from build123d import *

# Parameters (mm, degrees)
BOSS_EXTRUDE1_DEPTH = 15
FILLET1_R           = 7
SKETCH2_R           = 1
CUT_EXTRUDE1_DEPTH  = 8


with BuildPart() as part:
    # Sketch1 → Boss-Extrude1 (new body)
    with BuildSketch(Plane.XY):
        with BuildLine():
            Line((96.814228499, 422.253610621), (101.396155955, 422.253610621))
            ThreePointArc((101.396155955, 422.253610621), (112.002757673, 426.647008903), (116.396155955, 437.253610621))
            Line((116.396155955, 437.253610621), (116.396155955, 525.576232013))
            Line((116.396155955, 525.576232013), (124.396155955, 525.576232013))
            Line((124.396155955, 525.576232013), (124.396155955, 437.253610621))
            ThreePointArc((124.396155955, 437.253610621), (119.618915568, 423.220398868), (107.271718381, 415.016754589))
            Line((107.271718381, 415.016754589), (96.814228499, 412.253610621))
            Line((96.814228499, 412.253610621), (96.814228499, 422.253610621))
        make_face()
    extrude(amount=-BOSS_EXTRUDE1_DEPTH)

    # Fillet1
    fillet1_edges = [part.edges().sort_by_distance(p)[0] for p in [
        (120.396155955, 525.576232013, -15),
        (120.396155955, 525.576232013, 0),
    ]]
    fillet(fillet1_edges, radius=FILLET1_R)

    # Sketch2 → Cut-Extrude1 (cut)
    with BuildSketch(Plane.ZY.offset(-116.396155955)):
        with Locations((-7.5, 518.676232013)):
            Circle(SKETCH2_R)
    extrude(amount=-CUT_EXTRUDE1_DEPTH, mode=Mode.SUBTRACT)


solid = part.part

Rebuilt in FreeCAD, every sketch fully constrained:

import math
import FreeCAD as App
import Part
import Sketcher

V = App.Vector


def edges_at(feature, points):
    """Names of the edges that pass closest to the given points."""
    edges = feature.Shape.Edges
    near = lambda p: min(range(len(edges)), key=lambda i: edges[i].distToShape(Part.Vertex(*p))[0])
    return sorted({f"Edge{near(p) + 1}" for p in points})

doc = App.newDocument("Part")
body = doc.addObject("PartDesign::Body", "Body")

# Sketch on XY plane
sketch1 = doc.addObject("Sketcher::SketchObject", "Sketch")
body.addObject(sketch1)
sketch1.AttachmentSupport = (doc.XY_Plane, [""])
sketch1.MapMode = "FlatFace"
sketch1.addGeometry(Part.LineSegment(V(101.4, 422.3, 0), V(96.8, 422.3, 0)), False)
sketch1.addGeometry(Part.LineSegment(V(96.8, 422.3, 0), V(96.8, 412.3, 0)), False)
sketch1.addGeometry(Part.LineSegment(V(96.8, 412.3, 0), V(107.3, 415, 0)), False)
sketch1.addGeometry(Part.ArcOfCircle(Part.Circle(V(101.4, 437.3, 0), V(0, 0, 1), 23), math.radians(-75), math.radians(0)), False)
sketch1.addGeometry(Part.LineSegment(V(124.4, 437.3, 0), V(124.4, 525.6, 0)), False)
sketch1.addGeometry(Part.LineSegment(V(124.4, 525.6, 0), V(116.4, 525.6, 0)), False)
sketch1.addGeometry(Part.LineSegment(V(116.4, 525.6, 0), V(116.4, 437.3, 0)), False)
sketch1.addGeometry(Part.ArcOfCircle(Part.Circle(V(101.4, 437.3, 0), V(0, 0, 1), 15), math.radians(-90), math.radians(0)), False)
sketch1.addConstraint(Sketcher.Constraint("Coincident", 0, 2, 1, 1))
sketch1.addConstraint(Sketcher.Constraint("Coincident", 1, 2, 2, 1))
sketch1.addConstraint(Sketcher.Constraint("Tangent", 2, 2, 3, 1))
sketch1.addConstraint(Sketcher.Constraint("Tangent", 3, 2, 4, 1))
sketch1.addConstraint(Sketcher.Constraint("Coincident", 4, 2, 5, 1))
sketch1.addConstraint(Sketcher.Constraint("Coincident", 5, 2, 6, 1))
sketch1.addConstraint(Sketcher.Constraint("Tangent", 6, 2, 7, 2))
sketch1.addConstraint(Sketcher.Constraint("Tangent", 7, 1, 0, 1))
sketch1.addConstraint(Sketcher.Constraint("Horizontal", 0))
sketch1.addConstraint(Sketcher.Constraint("Vertical", 1))
sketch1.addConstraint(Sketcher.Constraint("Vertical", 4))
sketch1.addConstraint(Sketcher.Constraint("Horizontal", 5))
sketch1.addConstraint(Sketcher.Constraint("Vertical", 6))
sketch1.addConstraint(Sketcher.Constraint("Coincident", 7, 3, 3, 3))
sketch1.addConstraint(Sketcher.Constraint("Radius", 3, 23.0))
sketch1.addConstraint(Sketcher.Constraint("Radius", 7, 15.0))
sketch1.addConstraint(Sketcher.Constraint("DistanceY", 1, 2, 1, 1, 10.0))
sketch1.addConstraint(Sketcher.Constraint("DistanceY", 4, 1, 4, 2, 88.322621))
sketch1.addConstraint(Sketcher.Constraint("Distance", 2, 10.816379))
sketch1.addConstraint(Sketcher.Constraint("DistanceY", -1, 1, 3, 3, 437.253611))
sketch1.addConstraint(Sketcher.Constraint("DistanceX", -1, 1, 0, 2, 96.814228))
pad1 = doc.addObject("PartDesign::Pad", "Pad")
body.addObject(pad1)
pad1.Profile = sketch1
pad1.Length = 15
pad1.Reversed = True
doc.recompute()

fillet = doc.addObject("PartDesign::Fillet", "Fillet")
body.addObject(fillet)
fillet.Base = (pad1, edges_at(pad1, [(120.396, 525.576, -15), (120.396, 525.576, 0)]))
fillet.Radius = 7

# Sketch on YZ plane
sketch2 = doc.addObject("Sketcher::SketchObject", "Sketch001")
body.addObject(sketch2)
sketch2.AttachmentSupport = (doc.YZ_Plane, [""])
sketch2.MapMode = "FlatFace"
sketch2.AttachmentOffset = App.Placement(V(0, 0, 116.396156), App.Rotation())
sketch2.addGeometry(Part.Circle(V(518.7, -7.5, 0), V(0, 0, 1), 1), False)
sketch2.addConstraint(Sketcher.Constraint("Diameter", 0, 2.0))
sketch2.addConstraint(Sketcher.Constraint("DistanceY", 0, 3, -1, 1, 7.5))
sketch2.addConstraint(Sketcher.Constraint("DistanceX", -1, 1, 0, 3, 518.676232))
pocket1 = doc.addObject("PartDesign::Pocket", "Pocket")
body.addObject(pocket1)
pocket1.Profile = sketch2
pocket1.Length = 8
pocket1.Reversed = True

doc.recompute()
